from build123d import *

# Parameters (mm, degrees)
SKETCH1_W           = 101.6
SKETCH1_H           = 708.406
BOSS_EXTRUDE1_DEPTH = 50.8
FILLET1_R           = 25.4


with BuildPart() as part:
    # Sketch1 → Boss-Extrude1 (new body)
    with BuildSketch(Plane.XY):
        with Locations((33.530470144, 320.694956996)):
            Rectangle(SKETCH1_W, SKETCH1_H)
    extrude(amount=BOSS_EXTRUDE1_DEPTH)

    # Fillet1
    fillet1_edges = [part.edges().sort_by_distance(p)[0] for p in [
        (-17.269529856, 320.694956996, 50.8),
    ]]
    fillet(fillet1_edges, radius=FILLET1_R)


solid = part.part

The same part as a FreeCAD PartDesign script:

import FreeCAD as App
import Part
import Sketcher
from FreeCAD import Vector
Q = App.Units.Quantity


def edges_at(feature, points):
    """Names of the edges that pass closest to the given points."""
    edges = feature.Shape.Edges
    near = lambda p: min(range(len(edges)), key=lambda i: edges[i].distToShape(Part.Vertex(*p))[0])
    return sorted({f"Edge{near(p) + 1}" for p in points})


def add_polygon(sketch, points):
    """Adds a closed chain of lines whose ends are joined by coincident constraints."""
    first, n = sketch.GeometryCount, len(points)
    for a, b in zip(points, points[1:] + points[:1]):
        sketch.addGeometry(Part.LineSegment(App.Vector(*a, 0), App.Vector(*b, 0)), False)
    for i in range(n):
        sketch.addConstraint(Sketcher.Constraint("Coincident", first + i, 2, first + (i + 1) % n, 1))

doc = App.newDocument("Part")
params = doc.addObject("Spreadsheet::Sheet", "Params")
for row, (alias, value) in enumerate([
    ("sketch1_width", "4 in"),
    ("sketch1_height", "27.89 in"),
    ("pad1_length", "2 in"),
    ("fillet_radius", "1 in"),
], start=1):
    params.set(f"A{row}", alias)
    params.set(f"B{row}", "=" + value)
    params.setAlias(f"B{row}", alias)

body = doc.addObject("PartDesign::Body", "Body")

# Sketch on XY plane
sketch1 = body.newObject("Sketcher::SketchObject", "Sketch")
sketch1.AttachmentSupport = (doc.getObject("XY_Plane"), [""])
sketch1.MapMode = "FlatFace"
add_polygon(sketch1, [(-17.26953, 674.897957), (-17.26953, -33.508043), (84.33047, -33.508043), (84.33047, 674.897957)])  # lines 0-3
sketch1.addConstraint(Sketcher.Constraint("Vertical", 0))
sketch1.addConstraint(Sketcher.Constraint("Horizontal", 1))
sketch1.addConstraint(Sketcher.Constraint("Vertical", 2))
sketch1.addConstraint(Sketcher.Constraint("Horizontal", 3))
sketch1.addConstraint(Sketcher.Constraint("DistanceX", 1, 1, 1, 2, Q("4 in")))
sketch1.addConstraint(Sketcher.Constraint("DistanceY", 0, 2, 0, 1, Q("27.89 in")))
sketch1.addConstraint(Sketcher.Constraint("DistanceX", 0, 2, -1, 1, 17.26953))
sketch1.addConstraint(Sketcher.Constraint("DistanceY", 0, 2, -1, 1, 33.508043))
sketch1.setExpression("Constraints[8]", "Params.sketch1_width")
sketch1.setExpression("Constraints[9]", "Params.sketch1_height")
pad1 = body.newObject("PartDesign::Pad", "Pad")
pad1.Profile = sketch1
pad1.setExpression("Length", "Params.pad1_length")
doc.recompute()

fillet = body.newObject("PartDesign::Fillet", "Fillet")
fillet.Base = (pad1, edges_at(pad1, [(-17.27, 320.695, 50.8)]))
fillet.setExpression("Radius", "Params.fillet_radius")

doc.recompute()
